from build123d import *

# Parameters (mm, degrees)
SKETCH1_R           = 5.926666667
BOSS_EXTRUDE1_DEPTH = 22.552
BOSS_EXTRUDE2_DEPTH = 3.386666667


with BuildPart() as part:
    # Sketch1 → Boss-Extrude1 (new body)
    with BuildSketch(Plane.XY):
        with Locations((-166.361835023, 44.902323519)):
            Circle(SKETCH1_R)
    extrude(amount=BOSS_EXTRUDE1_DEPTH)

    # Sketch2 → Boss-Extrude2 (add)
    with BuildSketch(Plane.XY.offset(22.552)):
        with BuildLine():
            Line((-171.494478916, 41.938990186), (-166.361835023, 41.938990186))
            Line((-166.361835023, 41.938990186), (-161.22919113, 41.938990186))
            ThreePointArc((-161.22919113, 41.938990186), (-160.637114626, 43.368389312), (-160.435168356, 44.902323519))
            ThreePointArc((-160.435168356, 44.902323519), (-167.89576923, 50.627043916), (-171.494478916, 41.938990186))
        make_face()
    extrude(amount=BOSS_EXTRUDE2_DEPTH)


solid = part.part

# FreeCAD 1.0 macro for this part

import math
import FreeCAD as App
import Part
import Sketcher

V = App.Vector

doc = App.newDocument("Part")
body = doc.addObject("PartDesign::Body", "Body")

sketch1 = body.newObject("Sketcher::SketchObject", "Sketch")
sketch1.AttachmentSupport = (doc.getObject("XY_Plane"), [""])
sketch1.MapMode = "FlatFace"
sketch1.addGeometry(Part.Circle(V(-166.361835, 44.902324, 0), V(0, 0, 1), 5.926667), False)
sketch1.addConstraint([
    Sketcher.Constraint("Diameter", 0, 11.853333),
    Sketcher.Constraint("DistanceX", 0, 3, -1, 1, 166.361835),
    Sketcher.Constraint("DistanceY", -1, 1, 0, 3, 44.902324),
])
pad1 = body.newObject("PartDesign::Pad", "Pad")
pad1.Profile = sketch1
pad1.Length = 22.552

sketch2 = body.newObject("Sketcher::SketchObject", "Sketch001")
sketch2.AttachmentSupport = (doc.getObject("XY_Plane"), [""])
sketch2.MapMode = "FlatFace"
sketch2.AttachmentOffset = App.Placement(V(0, 0, 22.552), App.Rotation())
sketch2.addGeometry([
    Part.LineSegment(V(-171.494479, 41.93899, 0), V(-161.229191, 41.93899, 0)),
    Part.ArcOfCircle(Part.Circle(V(-166.361835, 44.902324, 0), V(0, 0, 1), 5.926667), math.radians(-30), math.radians(0)),
    Part.ArcOfCircle(Part.Circle(V(-166.361835, 44.902324, 0), V(0, 0, 1), 5.926667), math.radians(0), math.radians(210)),
], False)
sketch2.addConstraint([
    Sketcher.Constraint("Coincident", 0, 2, 1, 1),
    Sketcher.Constraint("Tangent", 1, 2, 2, 1),
    Sketcher.Constraint("Coincident", 2, 2, 0, 1),
    Sketcher.Constraint("Horizontal", 0),
    Sketcher.Constraint("Equal", 1, 2),
    Sketcher.Constraint("Horizontal", 2, 3, 1, 2),
    Sketcher.Constraint("Radius", 1, 5.926667),
    Sketcher.Constraint("DistanceX", 0, 1, 0, 2, 10.265288),
    Sketcher.Constraint("DistanceX", 0, 2, -1, 1, 161.229191),
    Sketcher.Constraint("DistanceY", -1, 1, 0, 2, 41.93899),
])
pad2 = body.newObject("PartDesign::Pad", "Pad001")
pad2.Profile = sketch2
pad2.Length = 3.386667

doc.recompute()
